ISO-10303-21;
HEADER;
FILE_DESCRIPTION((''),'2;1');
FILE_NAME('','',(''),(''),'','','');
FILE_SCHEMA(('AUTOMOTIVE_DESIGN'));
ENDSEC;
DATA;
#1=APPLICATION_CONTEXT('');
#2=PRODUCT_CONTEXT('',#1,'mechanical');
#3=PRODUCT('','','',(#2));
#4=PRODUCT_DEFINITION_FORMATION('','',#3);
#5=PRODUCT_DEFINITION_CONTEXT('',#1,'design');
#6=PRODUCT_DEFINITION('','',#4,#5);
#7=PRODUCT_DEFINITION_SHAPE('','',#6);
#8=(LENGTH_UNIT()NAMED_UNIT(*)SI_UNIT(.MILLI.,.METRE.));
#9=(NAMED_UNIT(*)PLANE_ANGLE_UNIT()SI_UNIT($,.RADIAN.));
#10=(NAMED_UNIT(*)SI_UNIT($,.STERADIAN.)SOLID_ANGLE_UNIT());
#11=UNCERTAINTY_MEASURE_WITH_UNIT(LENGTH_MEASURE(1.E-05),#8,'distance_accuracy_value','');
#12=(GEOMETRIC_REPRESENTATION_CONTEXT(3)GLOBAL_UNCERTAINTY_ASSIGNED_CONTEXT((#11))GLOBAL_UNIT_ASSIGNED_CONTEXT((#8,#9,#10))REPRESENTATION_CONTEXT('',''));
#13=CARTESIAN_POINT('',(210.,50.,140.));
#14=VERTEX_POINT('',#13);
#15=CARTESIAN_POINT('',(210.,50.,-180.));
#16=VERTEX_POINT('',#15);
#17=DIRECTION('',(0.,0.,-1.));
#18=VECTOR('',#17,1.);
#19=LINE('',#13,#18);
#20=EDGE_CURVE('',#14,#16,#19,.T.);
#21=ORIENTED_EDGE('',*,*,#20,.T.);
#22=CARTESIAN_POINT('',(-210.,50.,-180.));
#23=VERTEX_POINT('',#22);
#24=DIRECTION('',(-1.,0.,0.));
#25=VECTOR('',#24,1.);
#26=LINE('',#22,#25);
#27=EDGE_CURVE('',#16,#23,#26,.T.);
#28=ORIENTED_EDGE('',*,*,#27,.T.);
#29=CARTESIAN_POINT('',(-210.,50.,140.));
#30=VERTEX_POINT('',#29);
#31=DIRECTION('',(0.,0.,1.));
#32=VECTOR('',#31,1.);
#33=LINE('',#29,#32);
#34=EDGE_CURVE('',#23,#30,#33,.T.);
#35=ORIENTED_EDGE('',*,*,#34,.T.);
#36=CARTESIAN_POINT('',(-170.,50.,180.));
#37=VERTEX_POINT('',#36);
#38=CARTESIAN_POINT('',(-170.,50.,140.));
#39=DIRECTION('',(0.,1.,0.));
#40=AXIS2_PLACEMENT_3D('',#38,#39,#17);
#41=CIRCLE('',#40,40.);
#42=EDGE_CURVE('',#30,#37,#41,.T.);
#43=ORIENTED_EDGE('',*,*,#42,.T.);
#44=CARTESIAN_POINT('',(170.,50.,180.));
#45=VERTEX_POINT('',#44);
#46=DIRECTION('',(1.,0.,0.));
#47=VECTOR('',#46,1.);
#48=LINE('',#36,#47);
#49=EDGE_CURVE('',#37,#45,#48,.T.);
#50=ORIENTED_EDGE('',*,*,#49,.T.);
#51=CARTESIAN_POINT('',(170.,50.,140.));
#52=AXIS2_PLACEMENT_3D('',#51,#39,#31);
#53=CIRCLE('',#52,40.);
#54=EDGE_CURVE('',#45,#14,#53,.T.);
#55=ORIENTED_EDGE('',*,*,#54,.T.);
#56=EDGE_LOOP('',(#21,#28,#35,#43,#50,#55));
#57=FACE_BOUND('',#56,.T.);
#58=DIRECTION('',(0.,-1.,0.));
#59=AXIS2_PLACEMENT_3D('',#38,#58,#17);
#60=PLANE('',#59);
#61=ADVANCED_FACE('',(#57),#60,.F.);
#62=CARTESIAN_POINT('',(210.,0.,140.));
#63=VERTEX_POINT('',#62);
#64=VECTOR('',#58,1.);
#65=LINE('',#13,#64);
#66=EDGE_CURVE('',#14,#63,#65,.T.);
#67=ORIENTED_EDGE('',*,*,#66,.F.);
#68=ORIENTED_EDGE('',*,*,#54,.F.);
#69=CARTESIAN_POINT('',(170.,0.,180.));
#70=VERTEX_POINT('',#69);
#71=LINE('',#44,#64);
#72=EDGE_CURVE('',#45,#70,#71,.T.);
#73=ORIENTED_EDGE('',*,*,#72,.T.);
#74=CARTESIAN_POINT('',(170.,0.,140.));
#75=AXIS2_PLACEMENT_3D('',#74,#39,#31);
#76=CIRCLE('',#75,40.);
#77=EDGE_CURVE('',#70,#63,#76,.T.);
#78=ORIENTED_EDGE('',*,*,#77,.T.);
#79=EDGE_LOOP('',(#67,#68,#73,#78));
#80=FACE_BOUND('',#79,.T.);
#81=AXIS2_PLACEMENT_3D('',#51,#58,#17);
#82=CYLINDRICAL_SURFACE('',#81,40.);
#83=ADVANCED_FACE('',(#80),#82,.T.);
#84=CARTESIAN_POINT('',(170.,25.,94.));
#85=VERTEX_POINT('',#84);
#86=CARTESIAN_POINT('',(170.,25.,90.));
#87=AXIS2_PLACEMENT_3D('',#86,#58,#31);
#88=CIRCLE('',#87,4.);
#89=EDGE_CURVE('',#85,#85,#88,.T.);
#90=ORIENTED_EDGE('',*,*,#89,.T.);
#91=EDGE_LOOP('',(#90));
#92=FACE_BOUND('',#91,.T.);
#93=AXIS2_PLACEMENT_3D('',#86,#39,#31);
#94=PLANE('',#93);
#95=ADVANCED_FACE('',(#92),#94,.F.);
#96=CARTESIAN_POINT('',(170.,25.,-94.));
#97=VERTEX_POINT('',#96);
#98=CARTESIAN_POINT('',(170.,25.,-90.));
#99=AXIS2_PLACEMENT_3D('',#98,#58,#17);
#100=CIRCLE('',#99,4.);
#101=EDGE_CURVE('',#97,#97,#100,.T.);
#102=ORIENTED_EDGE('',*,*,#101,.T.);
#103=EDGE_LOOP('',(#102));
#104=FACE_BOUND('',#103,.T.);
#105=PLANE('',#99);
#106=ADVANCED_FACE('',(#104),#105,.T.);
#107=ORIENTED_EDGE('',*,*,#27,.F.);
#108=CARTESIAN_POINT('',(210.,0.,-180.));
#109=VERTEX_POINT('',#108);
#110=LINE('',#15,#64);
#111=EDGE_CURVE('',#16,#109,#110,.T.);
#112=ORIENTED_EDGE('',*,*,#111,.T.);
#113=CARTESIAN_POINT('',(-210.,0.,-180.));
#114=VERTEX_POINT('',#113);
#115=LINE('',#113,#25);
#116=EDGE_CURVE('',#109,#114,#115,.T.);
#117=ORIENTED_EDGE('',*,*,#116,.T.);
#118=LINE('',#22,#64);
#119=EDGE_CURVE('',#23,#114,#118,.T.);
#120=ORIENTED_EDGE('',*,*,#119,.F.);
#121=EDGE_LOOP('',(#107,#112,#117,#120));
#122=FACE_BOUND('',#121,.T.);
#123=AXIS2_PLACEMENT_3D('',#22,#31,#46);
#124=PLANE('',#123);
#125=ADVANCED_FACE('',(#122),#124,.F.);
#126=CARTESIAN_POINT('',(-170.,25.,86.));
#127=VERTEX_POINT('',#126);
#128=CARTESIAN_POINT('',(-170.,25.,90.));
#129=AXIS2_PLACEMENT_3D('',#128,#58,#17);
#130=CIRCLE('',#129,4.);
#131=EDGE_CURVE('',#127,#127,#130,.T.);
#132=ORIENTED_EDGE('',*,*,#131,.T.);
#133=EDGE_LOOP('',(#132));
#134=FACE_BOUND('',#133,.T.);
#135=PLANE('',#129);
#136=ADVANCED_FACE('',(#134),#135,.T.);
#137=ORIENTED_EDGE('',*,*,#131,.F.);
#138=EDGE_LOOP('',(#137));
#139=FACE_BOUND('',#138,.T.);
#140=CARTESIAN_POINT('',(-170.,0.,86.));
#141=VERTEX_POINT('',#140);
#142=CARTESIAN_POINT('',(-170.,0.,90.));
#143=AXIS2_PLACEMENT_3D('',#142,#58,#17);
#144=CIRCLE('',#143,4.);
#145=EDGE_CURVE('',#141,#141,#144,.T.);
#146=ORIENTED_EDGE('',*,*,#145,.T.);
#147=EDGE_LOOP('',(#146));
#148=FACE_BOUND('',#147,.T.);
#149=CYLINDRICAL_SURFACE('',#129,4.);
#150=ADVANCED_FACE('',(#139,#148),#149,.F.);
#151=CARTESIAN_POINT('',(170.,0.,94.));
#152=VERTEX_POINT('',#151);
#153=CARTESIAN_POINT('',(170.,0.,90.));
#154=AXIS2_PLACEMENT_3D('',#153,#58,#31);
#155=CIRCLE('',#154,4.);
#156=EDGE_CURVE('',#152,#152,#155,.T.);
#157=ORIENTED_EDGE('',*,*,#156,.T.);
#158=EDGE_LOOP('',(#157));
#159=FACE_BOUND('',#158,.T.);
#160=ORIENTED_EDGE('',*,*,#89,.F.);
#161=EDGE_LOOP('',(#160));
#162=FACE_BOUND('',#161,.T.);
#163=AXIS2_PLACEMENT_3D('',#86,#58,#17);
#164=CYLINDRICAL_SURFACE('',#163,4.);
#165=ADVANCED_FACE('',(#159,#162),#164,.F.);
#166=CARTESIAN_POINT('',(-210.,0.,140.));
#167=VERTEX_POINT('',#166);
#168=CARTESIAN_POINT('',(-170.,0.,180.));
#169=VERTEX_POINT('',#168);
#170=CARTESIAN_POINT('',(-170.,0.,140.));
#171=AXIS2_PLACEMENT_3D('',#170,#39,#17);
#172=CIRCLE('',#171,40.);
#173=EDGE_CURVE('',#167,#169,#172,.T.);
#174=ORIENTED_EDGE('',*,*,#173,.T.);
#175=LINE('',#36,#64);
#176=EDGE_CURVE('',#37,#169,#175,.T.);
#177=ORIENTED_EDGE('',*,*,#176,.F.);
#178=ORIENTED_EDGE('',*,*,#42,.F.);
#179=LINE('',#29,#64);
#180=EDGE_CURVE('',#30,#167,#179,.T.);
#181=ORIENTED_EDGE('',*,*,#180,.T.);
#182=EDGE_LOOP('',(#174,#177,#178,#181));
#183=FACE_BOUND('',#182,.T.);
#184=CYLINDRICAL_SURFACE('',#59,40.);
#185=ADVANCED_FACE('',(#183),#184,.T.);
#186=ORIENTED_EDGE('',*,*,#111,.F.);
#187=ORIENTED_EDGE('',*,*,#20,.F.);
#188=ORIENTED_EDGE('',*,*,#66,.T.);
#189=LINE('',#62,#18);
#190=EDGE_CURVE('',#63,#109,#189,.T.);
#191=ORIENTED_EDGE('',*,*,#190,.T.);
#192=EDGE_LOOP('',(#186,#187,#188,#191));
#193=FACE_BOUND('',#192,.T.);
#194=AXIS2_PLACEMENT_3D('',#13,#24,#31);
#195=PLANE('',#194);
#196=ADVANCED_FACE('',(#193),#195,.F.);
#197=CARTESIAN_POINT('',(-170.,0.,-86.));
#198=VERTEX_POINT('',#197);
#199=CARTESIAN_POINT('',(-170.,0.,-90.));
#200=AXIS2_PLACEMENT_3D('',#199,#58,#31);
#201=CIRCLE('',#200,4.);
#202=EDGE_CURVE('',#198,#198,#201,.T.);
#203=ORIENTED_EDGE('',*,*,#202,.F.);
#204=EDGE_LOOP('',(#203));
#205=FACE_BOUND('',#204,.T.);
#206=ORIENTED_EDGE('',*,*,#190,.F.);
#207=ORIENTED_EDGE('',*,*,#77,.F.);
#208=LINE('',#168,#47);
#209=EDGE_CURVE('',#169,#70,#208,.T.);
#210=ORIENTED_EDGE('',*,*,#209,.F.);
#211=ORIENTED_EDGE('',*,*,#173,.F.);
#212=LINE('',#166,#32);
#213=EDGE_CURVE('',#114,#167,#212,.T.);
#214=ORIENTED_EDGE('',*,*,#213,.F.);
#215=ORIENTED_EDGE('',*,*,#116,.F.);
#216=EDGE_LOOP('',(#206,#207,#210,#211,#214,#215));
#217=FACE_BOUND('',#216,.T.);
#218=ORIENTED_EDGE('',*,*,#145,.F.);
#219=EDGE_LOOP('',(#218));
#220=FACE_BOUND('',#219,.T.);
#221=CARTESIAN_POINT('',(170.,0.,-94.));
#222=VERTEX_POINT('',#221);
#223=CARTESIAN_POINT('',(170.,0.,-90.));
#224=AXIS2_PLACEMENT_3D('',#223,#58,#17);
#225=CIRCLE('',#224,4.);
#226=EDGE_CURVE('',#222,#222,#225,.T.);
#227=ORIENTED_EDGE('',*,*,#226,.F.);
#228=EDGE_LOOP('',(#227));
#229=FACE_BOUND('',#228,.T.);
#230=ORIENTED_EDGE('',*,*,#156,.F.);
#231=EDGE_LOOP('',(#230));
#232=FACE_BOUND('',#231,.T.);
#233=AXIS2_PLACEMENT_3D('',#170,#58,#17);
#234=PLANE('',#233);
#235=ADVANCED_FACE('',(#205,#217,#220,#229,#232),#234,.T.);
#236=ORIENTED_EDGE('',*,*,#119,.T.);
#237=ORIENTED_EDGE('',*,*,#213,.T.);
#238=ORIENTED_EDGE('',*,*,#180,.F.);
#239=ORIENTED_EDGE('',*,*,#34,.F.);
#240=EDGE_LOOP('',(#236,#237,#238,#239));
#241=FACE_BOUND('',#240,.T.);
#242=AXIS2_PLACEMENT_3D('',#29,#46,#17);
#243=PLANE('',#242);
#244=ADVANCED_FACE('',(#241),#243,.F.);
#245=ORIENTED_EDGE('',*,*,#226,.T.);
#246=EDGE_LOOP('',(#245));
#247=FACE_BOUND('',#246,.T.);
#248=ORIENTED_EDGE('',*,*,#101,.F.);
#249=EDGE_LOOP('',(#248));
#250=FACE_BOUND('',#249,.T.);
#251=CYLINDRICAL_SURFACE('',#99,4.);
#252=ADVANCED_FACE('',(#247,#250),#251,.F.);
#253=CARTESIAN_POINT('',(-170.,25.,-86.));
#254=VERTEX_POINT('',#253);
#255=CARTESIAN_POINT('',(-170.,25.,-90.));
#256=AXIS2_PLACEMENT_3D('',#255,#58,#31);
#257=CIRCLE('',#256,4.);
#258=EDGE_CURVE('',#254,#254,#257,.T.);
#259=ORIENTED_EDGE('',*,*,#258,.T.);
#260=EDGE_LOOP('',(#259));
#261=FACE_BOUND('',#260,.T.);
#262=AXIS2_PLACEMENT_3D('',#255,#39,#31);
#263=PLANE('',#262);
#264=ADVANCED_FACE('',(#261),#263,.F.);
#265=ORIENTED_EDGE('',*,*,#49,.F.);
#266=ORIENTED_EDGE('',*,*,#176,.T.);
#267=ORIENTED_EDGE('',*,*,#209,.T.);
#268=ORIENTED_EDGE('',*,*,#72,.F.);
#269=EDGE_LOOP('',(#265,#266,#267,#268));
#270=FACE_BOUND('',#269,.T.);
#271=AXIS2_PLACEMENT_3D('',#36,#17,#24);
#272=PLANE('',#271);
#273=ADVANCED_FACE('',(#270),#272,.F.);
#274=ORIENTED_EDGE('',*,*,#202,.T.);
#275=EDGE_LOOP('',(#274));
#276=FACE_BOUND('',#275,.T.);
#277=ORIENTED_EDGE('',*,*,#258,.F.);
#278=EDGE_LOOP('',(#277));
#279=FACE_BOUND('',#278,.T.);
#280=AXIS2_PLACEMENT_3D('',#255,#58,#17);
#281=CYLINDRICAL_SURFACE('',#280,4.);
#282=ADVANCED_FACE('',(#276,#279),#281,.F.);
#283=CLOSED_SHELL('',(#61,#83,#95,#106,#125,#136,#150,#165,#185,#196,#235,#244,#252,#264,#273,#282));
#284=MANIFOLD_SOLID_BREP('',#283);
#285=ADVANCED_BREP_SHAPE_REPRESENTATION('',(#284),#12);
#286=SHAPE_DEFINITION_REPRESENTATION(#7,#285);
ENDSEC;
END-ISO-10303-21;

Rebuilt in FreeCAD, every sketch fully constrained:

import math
import FreeCAD as App
import Part
import Sketcher
from FreeCAD import Vector
Q = App.Units.Quantity

doc = App.newDocument("Part")
body = doc.addObject("PartDesign::Body", "Body")

# Sketch on XZ plane
sketch1 = doc.addObject("Sketcher::SketchObject", "Sketch")
body.addObject(sketch1)
sketch1.AttachmentSupport = (doc.XZ_Plane, [""])
sketch1.MapMode = "FlatFace"
sketch1.addGeometry([
    Part.LineSegment(Vector(-170, 180, 0), Vector(170, 180, 0)),  # 0
    Part.ArcOfCircle(Part.Circle(Vector(170, 140, 0), Vector(0, 0, 1), 40), math.radians(0), math.radians(90)),  # 1
    Part.LineSegment(Vector(210, 140, 0), Vector(210, -180, 0)),  # 2
    Part.LineSegment(Vector(210, -180, 0), Vector(-210, -180, 0)),  # 3
    Part.LineSegment(Vector(-210, -180, 0), Vector(-210, 140, 0)),  # 4
    Part.ArcOfCircle(Part.Circle(Vector(-170, 140, 0), Vector(0, 0, 1), 40), math.radians(90), math.radians(180)),  # 5
], False)
sketch1.addConstraint([
    Sketcher.Constraint("Tangent", 0, 2, 1, 2),
    Sketcher.Constraint("Tangent", 1, 1, 2, 1),
    Sketcher.Constraint("Coincident", 2, 2, 3, 1),
    Sketcher.Constraint("Coincident", 3, 2, 4, 1),
    Sketcher.Constraint("Tangent", 4, 2, 5, 2),
    Sketcher.Constraint("Tangent", 5, 1, 0, 1),
    Sketcher.Constraint("Horizontal", 0),
    Sketcher.Constraint("Vertical", 2),
    Sketcher.Constraint("Horizontal", 3),
    Sketcher.Constraint("Vertical", 4),
    Sketcher.Constraint("Equal", 1, 5),
    Sketcher.Constraint("Radius", 1, Q("40 mm")),
    Sketcher.Constraint("DistanceX", 0, 1, 0, 2, Q("340 mm")),
    Sketcher.Constraint("DistanceY", 2, 2, 2, 1, Q("320 mm")),
    Sketcher.Constraint("DistanceX", -1, 1, 1, 3, Q("170 mm")),
    Sketcher.Constraint("DistanceY", -1, 1, 1, 3, Q("140 mm")),
])
pad1 = doc.addObject("PartDesign::Pad", "Pad")
body.addObject(pad1)
pad1.Profile = sketch1
pad1.Length = 50
pad1.Reversed = True

# Sketch on XZ plane
sketch2 = doc.addObject("Sketcher::SketchObject", "Sketch001")
body.addObject(sketch2)
sketch2.AttachmentSupport = (doc.XZ_Plane, [""])
sketch2.MapMode = "FlatFace"
sketch2.addGeometry([
    Part.Circle(Vector(-170, 90, 0), Vector(0, 0, 1), 4),
    Part.Circle(Vector(-170, -90, 0), Vector(0, 0, 1), 4),
    Part.Circle(Vector(170, -90, 0), Vector(0, 0, 1), 4),
    Part.Circle(Vector(170, 90, 0), Vector(0, 0, 1), 4),
], False)
sketch2.addConstraint([
    Sketcher.Constraint("Equal", 0, 1),
    Sketcher.Constraint("Equal", 1, 2),
    Sketcher.Constraint("Equal", 2, 3),
    Sketcher.Constraint("Symmetric", 0, 3, 2, 3, -1, 1),
    Sketcher.Constraint("Symmetric", 1, 3, 3, 3, -1, 1),
    Sketcher.Constraint("Symmetric", 1, 3, 2, 3, -2),
    Sketcher.Constraint("Diameter", 0, Q("8 mm")),
    Sketcher.Constraint("DistanceX", 0, 3, -1, 1, Q("170 mm")),
    Sketcher.Constraint("DistanceY", -1, 1, 0, 3, Q("90 mm")),
])
pocket1 = doc.addObject("PartDesign::Pocket", "Pocket")
body.addObject(pocket1)
pocket1.Profile = sketch2
pocket1.Length = 25

doc.recompute()
